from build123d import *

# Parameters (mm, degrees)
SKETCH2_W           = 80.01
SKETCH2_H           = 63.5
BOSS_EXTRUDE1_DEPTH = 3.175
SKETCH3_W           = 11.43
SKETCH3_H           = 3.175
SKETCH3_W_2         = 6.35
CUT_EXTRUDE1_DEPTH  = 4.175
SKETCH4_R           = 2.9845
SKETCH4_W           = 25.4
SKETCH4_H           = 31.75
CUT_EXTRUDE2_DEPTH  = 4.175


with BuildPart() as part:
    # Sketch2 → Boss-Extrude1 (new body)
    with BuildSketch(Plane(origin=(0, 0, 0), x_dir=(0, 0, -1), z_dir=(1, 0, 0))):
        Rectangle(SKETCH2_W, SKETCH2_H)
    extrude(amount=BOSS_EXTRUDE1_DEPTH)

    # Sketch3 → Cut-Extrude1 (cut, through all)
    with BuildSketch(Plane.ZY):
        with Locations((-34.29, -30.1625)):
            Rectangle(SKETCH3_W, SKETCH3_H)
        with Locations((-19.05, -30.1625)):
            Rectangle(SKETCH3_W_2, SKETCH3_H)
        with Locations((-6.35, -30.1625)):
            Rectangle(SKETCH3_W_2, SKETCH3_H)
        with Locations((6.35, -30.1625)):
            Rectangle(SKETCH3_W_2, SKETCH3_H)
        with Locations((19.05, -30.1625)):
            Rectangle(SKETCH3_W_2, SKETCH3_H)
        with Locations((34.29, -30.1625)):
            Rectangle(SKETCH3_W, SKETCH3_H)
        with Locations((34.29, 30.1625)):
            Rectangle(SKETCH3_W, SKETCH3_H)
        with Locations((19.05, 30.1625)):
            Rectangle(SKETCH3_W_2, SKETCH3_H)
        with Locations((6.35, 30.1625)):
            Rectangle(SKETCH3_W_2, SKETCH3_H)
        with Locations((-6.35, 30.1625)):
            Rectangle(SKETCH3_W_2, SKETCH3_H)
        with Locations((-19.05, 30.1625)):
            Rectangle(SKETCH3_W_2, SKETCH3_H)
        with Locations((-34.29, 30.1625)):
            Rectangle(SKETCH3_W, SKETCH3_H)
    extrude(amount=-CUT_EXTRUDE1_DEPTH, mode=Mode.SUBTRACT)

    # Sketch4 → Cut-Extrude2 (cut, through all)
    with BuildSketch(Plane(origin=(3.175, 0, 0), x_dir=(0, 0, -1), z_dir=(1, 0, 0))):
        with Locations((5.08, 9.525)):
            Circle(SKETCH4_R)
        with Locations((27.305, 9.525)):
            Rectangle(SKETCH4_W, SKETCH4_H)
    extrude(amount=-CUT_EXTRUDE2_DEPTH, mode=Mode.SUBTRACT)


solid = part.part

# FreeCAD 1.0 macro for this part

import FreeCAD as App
import Part
import Sketcher
from FreeCAD import Vector
Q = App.Units.Quantity

doc = App.newDocument("Part")
body = doc.addObject("PartDesign::Body", "Body")

# Sketch on YZ plane
sketch1 = doc.addObject("Sketcher::SketchObject", "Sketch")
body.addObject(sketch1)
sketch1.AttachmentSupport = (doc.YZ_Plane, [""])
sketch1.MapMode = "FlatFace"
sketch1.addGeometry(Part.LineSegment(Vector(32, 40, 0), Vector(-32, 40, 0)), False)
sketch1.addGeometry(Part.LineSegment(Vector(-32, 40, 0), Vector(-32, -40, 0)), False)
sketch1.addGeometry(Part.LineSegment(Vector(-32, -40, 0), Vector(32, -40, 0)), False)
sketch1.addGeometry(Part.LineSegment(Vector(32, -40, 0), Vector(32, 40, 0)), False)
sketch1.addConstraint(Sketcher.Constraint("Coincident", 0, 2, 1, 1))
sketch1.addConstraint(Sketcher.Constraint("Coincident", 1, 2, 2, 1))
sketch1.addConstraint(Sketcher.Constraint("Coincident", 2, 2, 3, 1))
sketch1.addConstraint(Sketcher.Constraint("Coincident", 3, 2, 0, 1))
sketch1.addConstraint(Sketcher.Constraint("Horizontal", 0))
sketch1.addConstraint(Sketcher.Constraint("Vertical", 1))
sketch1.addConstraint(Sketcher.Constraint("Horizontal", 2))
sketch1.addConstraint(Sketcher.Constraint("Vertical", 3))
sketch1.addConstraint(Sketcher.Constraint("Symmetric", 0, 2, 2, 2, -1, 1))
sketch1.addConstraint(Sketcher.Constraint("DistanceX", 0, 2, 0, 1, Q("2.5 in")))
sketch1.addConstraint(Sketcher.Constraint("DistanceY", 1, 2, 1, 1, Q("3.15 in")))
pad1 = doc.addObject("PartDesign::Pad", "Pad")
body.addObject(pad1)
pad1.Profile = sketch1
pad1.Length = Q("0.125 in")

# Sketch on YZ plane
sketch2 = doc.addObject("Sketcher::SketchObject", "Sketch001")
body.addObject(sketch2)
sketch2.AttachmentSupport = (doc.YZ_Plane, [""])
sketch2.MapMode = "FlatFace"
sketch2.addGeometry(Part.LineSegment(Vector(-28.6, -40, 0), Vector(-31.8, -40, 0)), False)
sketch2.addGeometry(Part.LineSegment(Vector(-31.8, -40, 0), Vector(-31.8, -28.6, 0)), False)
sketch2.addGeometry(Part.LineSegment(Vector(-31.8, -28.6, 0), Vector(-28.6, -28.6, 0)), False)
sketch2.addGeometry(Part.LineSegment(Vector(-28.6, -28.6, 0), Vector(-28.6, -40, 0)), False)
sketch2.addGeometry(Part.LineSegment(Vector(-28.6, -22.2, 0), Vector(-31.8, -22.2, 0)), False)
sketch2.addGeometry(Part.LineSegment(Vector(-31.8, -22.2, 0), Vector(-31.8, -15.9, 0)), False)
sketch2.addGeometry(Part.LineSegment(Vector(-31.8, -15.9, 0), Vector(-28.6, -15.9, 0)), False)
sketch2.addGeometry(Part.LineSegment(Vector(-28.6, -15.9, 0), Vector(-28.6, -22.2, 0)), False)
sketch2.addGeometry(Part.LineSegment(Vector(-28.6, -9.5, 0), Vector(-31.8, -9.5, 0)), False)
sketch2.addGeometry(Part.LineSegment(Vector(-31.8, -9.5, 0), Vector(-31.8, -3.2, 0)), False)
sketch2.addGeometry(Part.LineSegment(Vector(-31.8, -3.2, 0), Vector(-28.6, -3.2, 0)), False)
sketch2.addGeometry(Part.LineSegment(Vector(-28.6, -3.2, 0), Vector(-28.6, -9.5, 0)), False)
sketch2.addGeometry(Part.LineSegment(Vector(-28.6, 3.2, 0), Vector(-31.8, 3.2, 0)), False)
sketch2.addGeometry(Part.LineSegment(Vector(-31.8, 3.2, 0), Vector(-31.8, 9.5, 0)), False)
sketch2.addGeometry(Part.LineSegment(Vector(-31.8, 9.5, 0), Vector(-28.6, 9.5, 0)), False)
sketch2.addGeometry(Part.LineSegment(Vector(-28.6, 9.5, 0), Vector(-28.6, 3.2, 0)), False)
sketch2.addGeometry(Part.LineSegment(Vector(-28.6, 15.9, 0), Vector(-31.8, 15.9, 0)), False)
sketch2.addGeometry(Part.LineSegment(Vector(-31.8, 15.9, 0), Vector(-31.8, 22.2, 0)), False)
sketch2.addGeometry(Part.LineSegment(Vector(-31.8, 22.2, 0), Vector(-28.6, 22.2, 0)), False)
sketch2.addGeometry(Part.LineSegment(Vector(-28.6, 22.2, 0), Vector(-28.6, 15.9, 0)), False)
sketch2.addGeometry(Part.LineSegment(Vector(-28.6, 28.6, 0), Vector(-31.8, 28.6, 0)), False)
sketch2.addGeometry(Part.LineSegment(Vector(-31.8, 28.6, 0), Vector(-31.8, 40, 0)), False)
sketch2.addGeometry(Part.LineSegment(Vector(-31.8, 40, 0), Vector(-28.6, 40, 0)), False)
sketch2.addGeometry(Part.LineSegment(Vector(-28.6, 40, 0), Vector(-28.6, 28.6, 0)), False)
sketch2.addGeometry(Part.LineSegment(Vector(31.8, 28.6, 0), Vector(28.6, 28.6, 0)), False)
sketch2.addGeometry(Part.LineSegment(Vector(28.6, 28.6, 0), Vector(28.6, 40, 0)), False)
sketch2.addGeometry(Part.LineSegment(Vector(28.6, 40, 0), Vector(31.8, 40, 0)), False)
sketch2.addGeometry(Part.LineSegment(Vector(31.8, 40, 0), Vector(31.8, 28.6, 0)), False)
sketch2.addGeometry(Part.LineSegment(Vector(31.8, 15.9, 0), Vector(28.6, 15.9, 0)), False)
sketch2.addGeometry(Part.LineSegment(Vector(28.6, 15.9, 0), Vector(28.6, 22.2, 0)), False)
sketch2.addGeometry(Part.LineSegment(Vector(28.6, 22.2, 0), Vector(31.8, 22.2, 0)), False)
sketch2.addGeometry(Part.LineSegment(Vector(31.8, 22.2, 0), Vector(31.8, 15.9, 0)), False)
sketch2.addGeometry(Part.LineSegment(Vector(31.8, 3.2, 0), Vector(28.6, 3.2, 0)), False)
sketch2.addGeometry(Part.LineSegment(Vector(28.6, 3.2, 0), Vector(28.6, 9.5, 0)), False)
sketch2.addGeometry(Part.LineSegment(Vector(28.6, 9.5, 0), Vector(31.8, 9.5, 0)), False)
sketch2.addGeometry(Part.LineSegment(Vector(31.8, 9.5, 0), Vector(31.8, 3.2, 0)), False)
sketch2.addGeometry(Part.LineSegment(Vector(31.8, -9.5, 0), Vector(28.6, -9.5, 0)), False)
sketch2.addGeometry(Part.LineSegment(Vector(28.6, -9.5, 0), Vector(28.6, -3.2, 0)), False)
sketch2.addGeometry(Part.LineSegment(Vector(28.6, -3.2, 0), Vector(31.8, -3.2, 0)), False)
sketch2.addGeometry(Part.LineSegment(Vector(31.8, -3.2, 0), Vector(31.8, -9.5, 0)), False)
sketch2.addGeometry(Part.LineSegment(Vector(31.8, -22.2, 0), Vector(28.6, -22.2, 0)), False)
sketch2.addGeometry(Part.LineSegment(Vector(28.6, -22.2, 0), Vector(28.6, -15.9, 0)), False)
sketch2.addGeometry(Part.LineSegment(Vector(28.6, -15.9, 0), Vector(31.8, -15.9, 0)), False)
sketch2.addGeometry(Part.LineSegment(Vector(31.8, -15.9, 0), Vector(31.8, -22.2, 0)), False)
sketch2.addGeometry(Part.LineSegment(Vector(31.8, -40, 0), Vector(28.6, -40, 0)), False)
sketch2.addGeometry(Part.LineSegment(Vector(28.6, -40, 0), Vector(28.6, -28.6, 0)), False)
sketch2.addGeometry(Part.LineSegment(Vector(28.6, -28.6, 0), Vector(31.8, -28.6, 0)), False)
sketch2.addGeometry(Part.LineSegment(Vector(31.8, -28.6, 0), Vector(31.8, -40, 0)), False)
sketch2.addConstraint(Sketcher.Constraint("Coincident", 0, 2, 1, 1))
sketch2.addConstraint(Sketcher.Constraint("Coincident", 1, 2, 2, 1))
sketch2.addConstraint(Sketcher.Constraint("Coincident", 2, 2, 3, 1))
sketch2.addConstraint(Sketcher.Constraint("Coincident", 3, 2, 0, 1))
sketch2.addConstraint(Sketcher.Constraint("Coincident", 4, 2, 5, 1))
sketch2.addConstraint(Sketcher.Constraint("Coincident", 5, 2, 6, 1))
sketch2.addConstraint(Sketcher.Constraint("Coincident", 6, 2, 7, 1))
sketch2.addConstraint(Sketcher.Constraint("Coincident", 7, 2, 4, 1))
sketch2.addConstraint(Sketcher.Constraint("Coincident", 8, 2, 9, 1))
sketch2.addConstraint(Sketcher.Constraint("Coincident", 9, 2, 10, 1))
sketch2.addConstraint(Sketcher.Constraint("Coincident", 10, 2, 11, 1))
sketch2.addConstraint(Sketcher.Constraint("Coincident", 11, 2, 8, 1))
sketch2.addConstraint(Sketcher.Constraint("Coincident", 12, 2, 13, 1))
sketch2.addConstraint(Sketcher.Constraint("Coincident", 13, 2, 14, 1))
sketch2.addConstraint(Sketcher.Constraint("Coincident", 14, 2, 15, 1))
sketch2.addConstraint(Sketcher.Constraint("Coincident", 15, 2, 12, 1))
sketch2.addConstraint(Sketcher.Constraint("Coincident", 16, 2, 17, 1))
sketch2.addConstraint(Sketcher.Constraint("Coincident", 17, 2, 18, 1))
sketch2.addConstraint(Sketcher.Constraint("Coincident", 18, 2, 19, 1))
sketch2.addConstraint(Sketcher.Constraint("Coincident", 19, 2, 16, 1))
sketch2.addConstraint(Sketcher.Constraint("Coincident", 20, 2, 21, 1))
sketch2.addConstraint(Sketcher.Constraint("Coincident", 21, 2, 22, 1))
sketch2.addConstraint(Sketcher.Constraint("Coincident", 22, 2, 23, 1))
sketch2.addConstraint(Sketcher.Constraint("Coincident", 23, 2, 20, 1))
sketch2.addConstraint(Sketcher.Constraint("Coincident", 24, 2, 25, 1))
sketch2.addConstraint(Sketcher.Constraint("Coincident", 25, 2, 26, 1))
sketch2.addConstraint(Sketcher.Constraint("Coincident", 26, 2, 27, 1))
sketch2.addConstraint(Sketcher.Constraint("Coincident", 27, 2, 24, 1))
sketch2.addConstraint(Sketcher.Constraint("Coincident", 28, 2, 29, 1))
sketch2.addConstraint(Sketcher.Constraint("Coincident", 29, 2, 30, 1))
sketch2.addConstraint(Sketcher.Constraint("Coincident", 30, 2, 31, 1))
sketch2.addConstraint(Sketcher.Constraint("Coincident", 31, 2, 28, 1))
sketch2.addConstraint(Sketcher.Constraint("Coincident", 32, 2, 33, 1))
sketch2.addConstraint(Sketcher.Constraint("Coincident", 33, 2, 34, 1))
sketch2.addConstraint(Sketcher.Constraint("Coincident", 34, 2, 35, 1))
sketch2.addConstraint(Sketcher.Constraint("Coincident", 35, 2, 32, 1))
sketch2.addConstraint(Sketcher.Constraint("Coincident", 36, 2, 37, 1))
sketch2.addConstraint(Sketcher.Constraint("Coincident", 37, 2, 38, 1))
sketch2.addConstraint(Sketcher.Constraint("Coincident", 38, 2, 39, 1))
sketch2.addConstraint(Sketcher.Constraint("Coincident", 39, 2, 36, 1))
sketch2.addConstraint(Sketcher.Constraint("Coincident", 40, 2, 41, 1))
sketch2.addConstraint(Sketcher.Constraint("Coincident", 41, 2, 42, 1))
sketch2.addConstraint(Sketcher.Constraint("Coincident", 42, 2, 43, 1))
sketch2.addConstraint(Sketcher.Constraint("Coincident", 43, 2, 40, 1))
sketch2.addConstraint(Sketcher.Constraint("Coincident", 44, 2, 45, 1))
sketch2.addConstraint(Sketcher.Constraint("Coincident", 45, 2, 46, 1))
sketch2.addConstraint(Sketcher.Constraint("Coincident", 46, 2, 47, 1))
sketch2.addConstraint(Sketcher.Constraint("Coincident", 47, 2, 44, 1))
sketch2.addConstraint(Sketcher.Constraint("Horizontal", 0))
sketch2.addConstraint(Sketcher.Constraint("Vertical", 1))
sketch2.addConstraint(Sketcher.Constraint("Horizontal", 2))
sketch2.addConstraint(Sketcher.Constraint("Vertical", 3))
sketch2.addConstraint(Sketcher.Constraint("Horizontal", 4))
sketch2.addConstraint(Sketcher.Constraint("Vertical", 5))
sketch2.addConstraint(Sketcher.Constraint("Horizontal", 6))
sketch2.addConstraint(Sketcher.Constraint("Vertical", 7))
sketch2.addConstraint(Sketcher.Constraint("Horizontal", 8))
sketch2.addConstraint(Sketcher.Constraint("Vertical", 9))
sketch2.addConstraint(Sketcher.Constraint("Horizontal", 10))
sketch2.addConstraint(Sketcher.Constraint("Vertical", 11))
sketch2.addConstraint(Sketcher.Constraint("Horizontal", 12))
sketch2.addConstraint(Sketcher.Constraint("Vertical", 13))
sketch2.addConstraint(Sketcher.Constraint("Horizontal", 14))
sketch2.addConstraint(Sketcher.Constraint("Vertical", 15))
sketch2.addConstraint(Sketcher.Constraint("Horizontal", 16))
sketch2.addConstraint(Sketcher.Constraint("Vertical", 17))
sketch2.addConstraint(Sketcher.Constraint("Horizontal", 18))
sketch2.addConstraint(Sketcher.Constraint("Vertical", 19))
sketch2.addConstraint(Sketcher.Constraint("Horizontal", 20))
sketch2.addConstraint(Sketcher.Constraint("Vertical", 21))
sketch2.addConstraint(Sketcher.Constraint("Horizontal", 22))
sketch2.addConstraint(Sketcher.Constraint("Vertical", 23))
sketch2.addConstraint(Sketcher.Constraint("Horizontal", 24))
sketch2.addConstraint(Sketcher.Constraint("Vertical", 25))
sketch2.addConstraint(Sketcher.Constraint("Horizontal", 26))
sketch2.addConstraint(Sketcher.Constraint("Vertical", 27))
sketch2.addConstraint(Sketcher.Constraint("Horizontal", 28))
sketch2.addConstraint(Sketcher.Constraint("Vertical", 29))
sketch2.addConstraint(Sketcher.Constraint("Horizontal", 30))
sketch2.addConstraint(Sketcher.Constraint("Vertical", 31))
sketch2.addConstraint(Sketcher.Constraint("Horizontal", 32))
sketch2.addConstraint(Sketcher.Constraint("Vertical", 33))
sketch2.addConstraint(Sketcher.Constraint("Horizontal", 34))
sketch2.addConstraint(Sketcher.Constraint("Vertical", 35))
sketch2.addConstraint(Sketcher.Constraint("Horizontal", 36))
sketch2.addConstraint(Sketcher.Constraint("Vertical", 37))
sketch2.addConstraint(Sketcher.Constraint("Horizontal", 38))
sketch2.addConstraint(Sketcher.Constraint("Vertical", 39))
sketch2.addConstraint(Sketcher.Constraint("Horizontal", 40))
sketch2.addConstraint(Sketcher.Constraint("Vertical", 41))
sketch2.addConstraint(Sketcher.Constraint("Horizontal", 42))
sketch2.addConstraint(Sketcher.Constraint("Vertical", 43))
sketch2.addConstraint(Sketcher.Constraint("Horizontal", 44))
sketch2.addConstraint(Sketcher.Constraint("Vertical", 45))
sketch2.addConstraint(Sketcher.Constraint("Horizontal", 46))
sketch2.addConstraint(Sketcher.Constraint("Vertical", 47))
sketch2.addConstraint(Sketcher.Constraint("Symmetric", 2, 2, 24, 2, -1, 1))
sketch2.addConstraint(Sketcher.Constraint("Symmetric", 0, 2, 26, 2, -1, 1))
sketch2.addConstraint(Sketcher.Constraint("Symmetric", 6, 2, 28, 2, -1, 1))
sketch2.addConstraint(Sketcher.Constraint("Symmetric", 4, 2, 30, 2, -1, 1))
sketch2.addConstraint(Sketcher.Constraint("Symmetric", 10, 2, 32, 2, -1, 1))
sketch2.addConstraint(Sketcher.Constraint("Symmetric", 8, 2, 34, 2, -1, 1))
sketch2.addConstraint(Sketcher.Constraint("Symmetric", 14, 2, 36, 2, -1, 1))
sketch2.addConstraint(Sketcher.Constraint("Symmetric", 12, 2, 38, 2, -1, 1))
sketch2.addConstraint(Sketcher.Constraint("Symmetric", 18, 2, 40, 2, -1, 1))
sketch2.addConstraint(Sketcher.Constraint("Symmetric", 16, 2, 42, 2, -1, 1))
sketch2.addConstraint(Sketcher.Constraint("Symmetric", 22, 2, 44, 2, -1, 1))
sketch2.addConstraint(Sketcher.Constraint("Symmetric", 20, 2, 46, 2, -1, 1))
sketch2.addConstraint(Sketcher.Constraint("Symmetric", 23, 2, 24, 2, -2))
sketch2.addConstraint(Sketcher.Constraint("Symmetric", 21, 2, 26, 2, -2))
sketch2.addConstraint(Sketcher.Constraint("Symmetric", 19, 2, 28, 2, -2))
sketch2.addConstraint(Sketcher.Constraint("Symmetric", 17, 2, 30, 2, -2))
sketch2.addConstraint(Sketcher.Constraint("Symmetric", 15, 2, 32, 2, -2))
sketch2.addConstraint(Sketcher.Constraint("Symmetric", 13, 2, 34, 2, -2))
sketch2.addConstraint(Sketcher.Constraint("Vertical", 1, 2, 4, 2))
sketch2.addConstraint(Sketcher.Constraint("Vertical", 3, 2, 6, 2))
sketch2.addConstraint(Sketcher.Constraint("Vertical", 5, 2, 8, 2))
sketch2.addConstraint(Sketcher.Constraint("Vertical", 7, 2, 10, 2))
sketch2.addConstraint(Sketcher.Constraint("Equal", 7, 9))
sketch2.addConstraint(Sketcher.Constraint("DistanceY", 32, 2, 24, 2, Q("1 in")))
sketch2.addConstraint(Sketcher.Constraint("DistanceY", 36, 2, 28, 2, Q("1 in")))
sketch2.addConstraint(Sketcher.Constraint("DistanceY", 1, 1, 1, 2, Q("0.45 in")))
sketch2.addConstraint(Sketcher.Constraint("DistanceY", 5, 1, 5, 2, Q("0.25 in")))
sketch2.addConstraint(Sketcher.Constraint("DistanceY", 0, 2, 4, 2, Q("0.7 in")))
sketch2.addConstraint(Sketcher.Constraint("DistanceX", 0, 2, 0, 1, Q("0.125 in")))
sketch2.addConstraint(Sketcher.Constraint("DistanceX", 0, 2, -1, 1, Q("1.25 in")))
pocket1 = doc.addObject("PartDesign::Pocket", "Pocket")
body.addObject(pocket1)
pocket1.Profile = sketch2
pocket1.Type = "ThroughAll"
pocket1.Reversed = True

# Sketch on YZ plane
sketch3 = doc.addObject("Sketcher::SketchObject", "Sketch002")
body.addObject(sketch3)
sketch3.AttachmentSupport = (doc.YZ_Plane, [""])
sketch3.MapMode = "FlatFace"
sketch3.AttachmentOffset = App.Placement(Vector(0, 0, 0.125 * 25.4), App.Rotation())
sketch3.addGeometry(Part.Circle(Vector(9.5, -5.1, 0), Vector(0, 0, 1), 3), False)
sketch3.addGeometry(Part.LineSegment(Vector(25.4, -14.6, 0), Vector(-6.3, -14.6, 0)), False)
sketch3.addGeometry(Part.LineSegment(Vector(-6.3, -14.6, 0), Vector(-6.3, -40, 0)), False)
sketch3.addGeometry(Part.LineSegment(Vector(-6.3, -40, 0), Vector(25.4, -40, 0)), False)
sketch3.addGeometry(Part.LineSegment(Vector(25.4, -40, 0), Vector(25.4, -14.6, 0)), False)
sketch3.addConstraint(Sketcher.Constraint("Coincident", 1, 2, 2, 1))
sketch3.addConstraint(Sketcher.Constraint("Coincident", 2, 2, 3, 1))
sketch3.addConstraint(Sketcher.Constraint("Coincident", 3, 2, 4, 1))
sketch3.addConstraint(Sketcher.Constraint("Coincident", 4, 2, 1, 1))
sketch3.addConstraint(Sketcher.Constraint("Horizontal", 1))
sketch3.addConstraint(Sketcher.Constraint("Vertical", 2))
sketch3.addConstraint(Sketcher.Constraint("Horizontal", 3))
sketch3.addConstraint(Sketcher.Constraint("Vertical", 4))
sketch3.addConstraint(Sketcher.Constraint("DistanceY", 2, 2, 2, 1, Q("1 in")))
sketch3.addConstraint(Sketcher.Constraint("Diameter", 0, Q("0.235 in")))
sketch3.addConstraint(Sketcher.Constraint("DistanceX", -1, 1, 3, 2, Q("1 in")))
sketch3.addConstraint(Sketcher.Constraint("DistanceX", 1, 2, 1, 1, Q("1.25 in")))
sketch3.addConstraint(Sketcher.Constraint("DistanceY", 0, 3, -1, 1, Q("0.2 in")))
sketch3.addConstraint(Sketcher.Constraint("DistanceX", -1, 1, 0, 3, Q("0.375 in")))
sketch3.addConstraint(Sketcher.Constraint("DistanceY", 1, 2, -1, 1, Q("0.575 in")))
pocket2 = doc.addObject("PartDesign::Pocket", "Pocket001")
body.addObject(pocket2)
pocket2.Profile = sketch3
pocket2.Type = "ThroughAll"

doc.recompute()
